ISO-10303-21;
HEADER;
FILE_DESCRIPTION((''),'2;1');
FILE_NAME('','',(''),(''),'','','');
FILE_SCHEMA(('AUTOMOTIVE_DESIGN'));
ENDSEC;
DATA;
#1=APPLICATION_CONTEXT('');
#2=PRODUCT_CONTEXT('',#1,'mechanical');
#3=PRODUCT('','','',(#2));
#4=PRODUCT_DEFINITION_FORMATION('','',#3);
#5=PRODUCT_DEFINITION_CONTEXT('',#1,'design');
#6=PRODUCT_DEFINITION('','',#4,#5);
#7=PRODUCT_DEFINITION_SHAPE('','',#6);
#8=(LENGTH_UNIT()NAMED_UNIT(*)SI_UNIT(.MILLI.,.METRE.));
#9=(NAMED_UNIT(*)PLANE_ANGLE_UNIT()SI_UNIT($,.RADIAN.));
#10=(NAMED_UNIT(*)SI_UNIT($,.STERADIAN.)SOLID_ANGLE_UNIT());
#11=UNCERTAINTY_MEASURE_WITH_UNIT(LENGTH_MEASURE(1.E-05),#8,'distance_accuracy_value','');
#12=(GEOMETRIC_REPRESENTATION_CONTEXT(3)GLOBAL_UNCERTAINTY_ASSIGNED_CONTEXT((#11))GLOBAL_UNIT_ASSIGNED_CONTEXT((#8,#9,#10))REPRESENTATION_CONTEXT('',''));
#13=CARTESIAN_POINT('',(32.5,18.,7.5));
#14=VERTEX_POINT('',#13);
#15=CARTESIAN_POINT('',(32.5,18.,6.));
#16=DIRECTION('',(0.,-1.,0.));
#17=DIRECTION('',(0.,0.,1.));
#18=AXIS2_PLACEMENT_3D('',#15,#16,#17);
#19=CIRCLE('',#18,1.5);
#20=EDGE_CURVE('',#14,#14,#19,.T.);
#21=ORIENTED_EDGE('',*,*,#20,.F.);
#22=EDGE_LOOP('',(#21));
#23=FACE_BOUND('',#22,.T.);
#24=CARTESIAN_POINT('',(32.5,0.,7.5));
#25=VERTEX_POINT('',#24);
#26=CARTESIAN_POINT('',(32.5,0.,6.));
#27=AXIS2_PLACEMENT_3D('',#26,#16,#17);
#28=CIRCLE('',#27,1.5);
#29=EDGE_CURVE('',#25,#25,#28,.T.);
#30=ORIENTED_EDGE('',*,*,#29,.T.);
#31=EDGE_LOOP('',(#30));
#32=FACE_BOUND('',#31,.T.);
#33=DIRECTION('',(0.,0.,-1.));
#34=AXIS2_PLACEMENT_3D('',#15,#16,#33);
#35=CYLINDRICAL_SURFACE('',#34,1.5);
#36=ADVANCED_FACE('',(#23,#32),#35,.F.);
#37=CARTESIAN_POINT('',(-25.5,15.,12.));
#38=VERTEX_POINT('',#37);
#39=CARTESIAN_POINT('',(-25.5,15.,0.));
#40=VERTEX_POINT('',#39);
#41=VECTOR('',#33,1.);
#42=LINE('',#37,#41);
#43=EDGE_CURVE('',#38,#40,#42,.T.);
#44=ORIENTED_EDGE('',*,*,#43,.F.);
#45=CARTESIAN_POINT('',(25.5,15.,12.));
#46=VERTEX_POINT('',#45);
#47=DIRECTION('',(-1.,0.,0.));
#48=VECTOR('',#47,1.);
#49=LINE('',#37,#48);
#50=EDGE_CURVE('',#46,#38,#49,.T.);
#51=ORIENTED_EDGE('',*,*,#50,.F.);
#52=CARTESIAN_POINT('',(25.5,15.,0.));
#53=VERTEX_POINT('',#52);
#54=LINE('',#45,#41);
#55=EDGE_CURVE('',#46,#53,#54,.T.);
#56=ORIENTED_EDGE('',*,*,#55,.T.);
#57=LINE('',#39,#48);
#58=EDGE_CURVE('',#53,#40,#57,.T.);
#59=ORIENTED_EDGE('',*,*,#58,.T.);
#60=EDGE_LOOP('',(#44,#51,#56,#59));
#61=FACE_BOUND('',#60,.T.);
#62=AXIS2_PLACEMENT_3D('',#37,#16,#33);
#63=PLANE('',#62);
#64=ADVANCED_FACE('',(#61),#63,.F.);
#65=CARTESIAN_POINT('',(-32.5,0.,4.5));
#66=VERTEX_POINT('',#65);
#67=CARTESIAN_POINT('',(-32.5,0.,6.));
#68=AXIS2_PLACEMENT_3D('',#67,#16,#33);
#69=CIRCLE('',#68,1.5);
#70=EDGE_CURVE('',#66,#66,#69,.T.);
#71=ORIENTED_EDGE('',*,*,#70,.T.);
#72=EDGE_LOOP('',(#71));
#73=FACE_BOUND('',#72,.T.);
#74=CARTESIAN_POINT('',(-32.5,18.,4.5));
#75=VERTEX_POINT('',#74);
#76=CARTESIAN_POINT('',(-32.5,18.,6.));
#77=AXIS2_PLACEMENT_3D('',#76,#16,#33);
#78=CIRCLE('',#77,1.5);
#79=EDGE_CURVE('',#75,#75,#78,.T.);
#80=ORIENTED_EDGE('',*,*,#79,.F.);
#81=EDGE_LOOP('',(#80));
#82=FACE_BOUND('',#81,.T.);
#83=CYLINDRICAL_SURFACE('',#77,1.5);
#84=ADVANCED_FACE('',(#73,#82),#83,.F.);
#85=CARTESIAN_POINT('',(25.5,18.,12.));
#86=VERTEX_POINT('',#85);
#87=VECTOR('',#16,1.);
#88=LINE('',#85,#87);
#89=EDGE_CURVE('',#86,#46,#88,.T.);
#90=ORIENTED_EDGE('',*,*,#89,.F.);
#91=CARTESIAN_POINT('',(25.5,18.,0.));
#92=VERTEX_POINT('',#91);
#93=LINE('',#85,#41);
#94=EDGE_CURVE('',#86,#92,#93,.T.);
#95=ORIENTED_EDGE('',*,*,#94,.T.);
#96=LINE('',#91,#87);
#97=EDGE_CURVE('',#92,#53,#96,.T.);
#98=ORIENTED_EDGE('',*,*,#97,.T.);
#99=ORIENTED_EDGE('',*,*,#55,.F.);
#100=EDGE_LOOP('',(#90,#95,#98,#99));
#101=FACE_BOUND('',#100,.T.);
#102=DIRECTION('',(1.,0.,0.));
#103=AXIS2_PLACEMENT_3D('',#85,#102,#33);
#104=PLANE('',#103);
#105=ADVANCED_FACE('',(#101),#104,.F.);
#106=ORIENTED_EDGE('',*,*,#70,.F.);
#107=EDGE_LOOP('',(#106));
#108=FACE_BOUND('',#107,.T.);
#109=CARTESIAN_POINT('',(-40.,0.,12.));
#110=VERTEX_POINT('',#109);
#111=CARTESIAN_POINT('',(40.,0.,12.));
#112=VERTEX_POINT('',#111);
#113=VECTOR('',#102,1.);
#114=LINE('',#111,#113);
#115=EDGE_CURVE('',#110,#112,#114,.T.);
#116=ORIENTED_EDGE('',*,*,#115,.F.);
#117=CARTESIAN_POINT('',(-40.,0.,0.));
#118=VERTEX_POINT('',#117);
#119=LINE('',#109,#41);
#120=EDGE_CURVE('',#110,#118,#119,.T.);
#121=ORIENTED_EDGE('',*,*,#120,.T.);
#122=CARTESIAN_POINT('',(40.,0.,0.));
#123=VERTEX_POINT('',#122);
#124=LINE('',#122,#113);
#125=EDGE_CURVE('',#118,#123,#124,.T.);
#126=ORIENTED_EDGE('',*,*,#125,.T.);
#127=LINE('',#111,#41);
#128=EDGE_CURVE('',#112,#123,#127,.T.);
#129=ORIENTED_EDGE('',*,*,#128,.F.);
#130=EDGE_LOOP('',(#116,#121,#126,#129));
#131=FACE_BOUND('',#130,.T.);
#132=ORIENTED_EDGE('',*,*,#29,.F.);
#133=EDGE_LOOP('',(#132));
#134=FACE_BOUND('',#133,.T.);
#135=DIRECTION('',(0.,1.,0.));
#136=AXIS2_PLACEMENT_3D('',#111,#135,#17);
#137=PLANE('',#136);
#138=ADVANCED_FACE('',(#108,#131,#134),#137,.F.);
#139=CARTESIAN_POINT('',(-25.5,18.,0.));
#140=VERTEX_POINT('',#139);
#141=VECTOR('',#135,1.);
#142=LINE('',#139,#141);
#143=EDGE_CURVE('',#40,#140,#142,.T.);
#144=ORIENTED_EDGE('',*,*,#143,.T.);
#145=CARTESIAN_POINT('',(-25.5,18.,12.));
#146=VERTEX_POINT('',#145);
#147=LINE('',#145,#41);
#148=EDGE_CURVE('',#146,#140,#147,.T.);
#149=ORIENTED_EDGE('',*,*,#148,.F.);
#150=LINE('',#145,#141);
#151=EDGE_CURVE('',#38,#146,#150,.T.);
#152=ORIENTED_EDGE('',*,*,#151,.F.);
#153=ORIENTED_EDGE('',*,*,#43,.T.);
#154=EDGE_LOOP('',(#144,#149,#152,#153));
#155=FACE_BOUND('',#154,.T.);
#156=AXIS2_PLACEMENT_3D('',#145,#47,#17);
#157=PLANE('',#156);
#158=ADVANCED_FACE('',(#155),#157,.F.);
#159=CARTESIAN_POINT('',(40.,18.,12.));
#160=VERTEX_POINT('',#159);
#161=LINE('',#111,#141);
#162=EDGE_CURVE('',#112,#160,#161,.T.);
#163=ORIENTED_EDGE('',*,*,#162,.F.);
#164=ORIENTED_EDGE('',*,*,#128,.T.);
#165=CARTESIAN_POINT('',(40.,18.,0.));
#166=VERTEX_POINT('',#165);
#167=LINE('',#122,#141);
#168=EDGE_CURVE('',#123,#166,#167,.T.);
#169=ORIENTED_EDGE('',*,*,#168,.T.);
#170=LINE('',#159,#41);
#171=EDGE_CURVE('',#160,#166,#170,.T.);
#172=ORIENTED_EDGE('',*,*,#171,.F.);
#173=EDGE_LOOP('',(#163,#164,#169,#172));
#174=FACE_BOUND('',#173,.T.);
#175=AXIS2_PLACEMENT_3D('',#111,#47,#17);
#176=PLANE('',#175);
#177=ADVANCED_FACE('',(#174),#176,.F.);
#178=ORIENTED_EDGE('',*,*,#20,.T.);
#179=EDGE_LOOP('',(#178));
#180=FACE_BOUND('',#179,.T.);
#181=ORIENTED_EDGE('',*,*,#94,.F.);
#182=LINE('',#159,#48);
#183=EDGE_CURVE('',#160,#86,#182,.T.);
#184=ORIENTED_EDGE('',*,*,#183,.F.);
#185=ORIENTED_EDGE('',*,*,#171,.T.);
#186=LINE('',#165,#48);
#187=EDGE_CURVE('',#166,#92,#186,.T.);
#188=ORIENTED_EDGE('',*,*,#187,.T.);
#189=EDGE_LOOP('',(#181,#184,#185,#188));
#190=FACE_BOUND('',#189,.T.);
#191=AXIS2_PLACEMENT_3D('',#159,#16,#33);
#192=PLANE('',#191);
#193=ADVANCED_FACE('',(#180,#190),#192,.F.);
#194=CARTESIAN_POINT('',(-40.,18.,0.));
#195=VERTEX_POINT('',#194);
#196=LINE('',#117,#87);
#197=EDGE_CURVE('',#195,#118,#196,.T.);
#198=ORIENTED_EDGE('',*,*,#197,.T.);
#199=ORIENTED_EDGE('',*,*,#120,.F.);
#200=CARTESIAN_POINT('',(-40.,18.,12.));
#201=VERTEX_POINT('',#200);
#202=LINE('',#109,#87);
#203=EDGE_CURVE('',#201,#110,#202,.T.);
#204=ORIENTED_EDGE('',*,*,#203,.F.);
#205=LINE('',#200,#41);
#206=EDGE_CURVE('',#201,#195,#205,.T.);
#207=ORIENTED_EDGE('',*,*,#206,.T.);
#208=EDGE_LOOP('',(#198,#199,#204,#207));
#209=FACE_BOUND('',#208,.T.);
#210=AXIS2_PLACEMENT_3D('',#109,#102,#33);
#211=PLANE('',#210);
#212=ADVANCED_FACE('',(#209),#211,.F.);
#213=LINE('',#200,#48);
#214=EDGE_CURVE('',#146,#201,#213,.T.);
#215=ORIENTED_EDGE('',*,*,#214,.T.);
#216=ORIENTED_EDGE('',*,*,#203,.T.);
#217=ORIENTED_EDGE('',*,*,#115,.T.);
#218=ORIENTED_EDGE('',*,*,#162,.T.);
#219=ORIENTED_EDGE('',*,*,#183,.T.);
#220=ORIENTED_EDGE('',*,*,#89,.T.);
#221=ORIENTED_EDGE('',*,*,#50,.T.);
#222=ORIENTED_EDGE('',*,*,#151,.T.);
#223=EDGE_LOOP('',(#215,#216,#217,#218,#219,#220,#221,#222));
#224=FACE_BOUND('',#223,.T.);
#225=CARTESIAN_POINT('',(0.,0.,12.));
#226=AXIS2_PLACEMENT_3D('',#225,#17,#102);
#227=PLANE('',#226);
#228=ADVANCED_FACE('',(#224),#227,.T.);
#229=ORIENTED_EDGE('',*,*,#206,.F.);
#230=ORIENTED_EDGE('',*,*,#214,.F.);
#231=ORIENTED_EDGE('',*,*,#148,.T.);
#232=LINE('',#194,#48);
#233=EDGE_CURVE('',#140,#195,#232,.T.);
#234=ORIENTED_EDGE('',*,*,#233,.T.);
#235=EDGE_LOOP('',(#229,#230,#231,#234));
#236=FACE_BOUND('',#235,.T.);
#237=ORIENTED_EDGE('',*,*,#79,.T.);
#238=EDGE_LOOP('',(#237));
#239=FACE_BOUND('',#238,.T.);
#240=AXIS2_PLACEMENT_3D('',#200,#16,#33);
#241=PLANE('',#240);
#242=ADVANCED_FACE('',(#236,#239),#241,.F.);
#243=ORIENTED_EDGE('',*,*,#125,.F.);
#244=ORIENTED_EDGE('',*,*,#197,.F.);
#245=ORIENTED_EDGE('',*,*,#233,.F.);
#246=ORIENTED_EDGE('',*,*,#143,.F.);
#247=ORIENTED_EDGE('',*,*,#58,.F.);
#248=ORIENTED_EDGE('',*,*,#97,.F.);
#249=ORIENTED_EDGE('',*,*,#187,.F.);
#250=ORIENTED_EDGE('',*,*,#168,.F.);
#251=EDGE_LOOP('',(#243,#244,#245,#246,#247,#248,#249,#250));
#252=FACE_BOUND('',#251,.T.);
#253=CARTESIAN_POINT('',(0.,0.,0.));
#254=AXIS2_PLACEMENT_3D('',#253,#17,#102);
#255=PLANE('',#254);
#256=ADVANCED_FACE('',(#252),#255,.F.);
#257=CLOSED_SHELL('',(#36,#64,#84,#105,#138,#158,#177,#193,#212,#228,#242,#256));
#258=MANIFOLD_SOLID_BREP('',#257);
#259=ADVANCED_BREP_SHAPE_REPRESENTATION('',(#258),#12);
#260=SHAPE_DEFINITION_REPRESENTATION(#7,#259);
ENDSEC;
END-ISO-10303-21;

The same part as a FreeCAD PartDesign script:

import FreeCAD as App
import Part
import Sketcher
Q = App.Units.Quantity


def add_polygon(sketch, points):
    """Adds a closed chain of lines whose ends are joined by coincident constraints."""
    first, n = sketch.GeometryCount, len(points)
    for a, b in zip(points, points[1:] + points[:1]):
        sketch.addGeometry(Part.LineSegment(App.Vector(*a, 0), App.Vector(*b, 0)), False)
    for i in range(n):
        sketch.addConstraint(Sketcher.Constraint("Coincident", first + i, 2, first + (i + 1) % n, 1))

doc = App.newDocument("Part")
params = doc.addObject("Spreadsheet::Sheet", "Params")
for row, (alias, value) in enumerate([
    ("sketch1_width", "80 mm"),
    ("sketch1_width2", "51 mm"),
    ("sketch1_height", "18 mm"),
    ("sketch1_height2", "3 mm"),
    ("pad1_length", "12 mm"),
    ("sketch2_diameter", "3 mm"),
], start=1):
    params.set(f"A{row}", alias)
    params.set(f"B{row}", "=" + value)
    params.setAlias(f"B{row}", alias)

body = doc.addObject("PartDesign::Body", "Body")

# Sketch on XY plane
sketch1 = doc.addObject("Sketcher::SketchObject", "Sketch")
body.addObject(sketch1)
sketch1.AttachmentSupport = (doc.XY_Plane, [""])
sketch1.MapMode = "FlatFace"
add_polygon(sketch1, [(-40, 0), (40, 0), (40, 18), (25.5, 18), (25.5, 15), (-25.5, 15), (-25.5, 18), (-40, 18)])  # lines 0-7
sketch1.addConstraint(Sketcher.Constraint("Horizontal", 0))
sketch1.addConstraint(Sketcher.Constraint("Vertical", 1))
sketch1.addConstraint(Sketcher.Constraint("Horizontal", 2))
sketch1.addConstraint(Sketcher.Constraint("Vertical", 3))
sketch1.addConstraint(Sketcher.Constraint("Horizontal", 4))
sketch1.addConstraint(Sketcher.Constraint("Vertical", 5))
sketch1.addConstraint(Sketcher.Constraint("Horizontal", 6))
sketch1.addConstraint(Sketcher.Constraint("Vertical", 7))
sketch1.addConstraint(Sketcher.Constraint("Symmetric", 0, 2, 7, 2, -1, 1))
sketch1.addConstraint(Sketcher.Constraint("Symmetric", 2, 2, 5, 2, -2))
sketch1.addConstraint(Sketcher.Constraint("DistanceX", 0, 1, 0, 2, Q("80 mm")))
sketch1.addConstraint(Sketcher.Constraint("DistanceX", 4, 2, 4, 1, Q("51 mm")))
sketch1.addConstraint(Sketcher.Constraint("DistanceY", 1, 1, 1, 2, Q("18 mm")))
sketch1.addConstraint(Sketcher.Constraint("DistanceY", 3, 2, 3, 1, Q("3 mm")))
sketch1.setExpression("Constraints[18]", "Params.sketch1_width")
sketch1.setExpression("Constraints[19]", "Params.sketch1_width2")
sketch1.setExpression("Constraints[20]", "Params.sketch1_height")
sketch1.setExpression("Constraints[21]", "Params.sketch1_height2")
pad1 = doc.addObject("PartDesign::Pad", "Pad")
body.addObject(pad1)
pad1.Profile = sketch1
pad1.setExpression("Length", "Params.pad1_length")

# Sketch on XZ plane
sketch2 = doc.addObject("Sketcher::SketchObject", "Sketch001")
body.addObject(sketch2)
sketch2.AttachmentSupport = (doc.XZ_Plane, [""])
sketch2.MapMode = "FlatFace"
sketch2.addGeometry(Part.Circle(App.Vector(-32.5, 6, 0), App.Vector(0, 0, 1), 1.5), False)
sketch2.addGeometry(Part.Circle(App.Vector(32.5, 6, 0), App.Vector(0, 0, 1), 1.5), False)
sketch2.addConstraint(Sketcher.Constraint("Equal", 0, 1))
sketch2.addConstraint(Sketcher.Constraint("Symmetric", 0, 3, 1, 3, -2))
sketch2.addConstraint(Sketcher.Constraint("Diameter", 0, Q("3 mm")))
sketch2.addConstraint(Sketcher.Constraint("DistanceY", -1, 1, 0, 3, Q("6 mm")))
sketch2.addConstraint(Sketcher.Constraint("DistanceX", 0, 3, 1, 3, Q("65 mm")))
sketch2.setExpression("Constraints[2]", "Params.sketch2_diameter")
pocket1 = doc.addObject("PartDesign::Pocket", "Pocket")
body.addObject(pocket1)
pocket1.Profile = sketch2
pocket1.Type = "ThroughAll"

doc.recompute()
